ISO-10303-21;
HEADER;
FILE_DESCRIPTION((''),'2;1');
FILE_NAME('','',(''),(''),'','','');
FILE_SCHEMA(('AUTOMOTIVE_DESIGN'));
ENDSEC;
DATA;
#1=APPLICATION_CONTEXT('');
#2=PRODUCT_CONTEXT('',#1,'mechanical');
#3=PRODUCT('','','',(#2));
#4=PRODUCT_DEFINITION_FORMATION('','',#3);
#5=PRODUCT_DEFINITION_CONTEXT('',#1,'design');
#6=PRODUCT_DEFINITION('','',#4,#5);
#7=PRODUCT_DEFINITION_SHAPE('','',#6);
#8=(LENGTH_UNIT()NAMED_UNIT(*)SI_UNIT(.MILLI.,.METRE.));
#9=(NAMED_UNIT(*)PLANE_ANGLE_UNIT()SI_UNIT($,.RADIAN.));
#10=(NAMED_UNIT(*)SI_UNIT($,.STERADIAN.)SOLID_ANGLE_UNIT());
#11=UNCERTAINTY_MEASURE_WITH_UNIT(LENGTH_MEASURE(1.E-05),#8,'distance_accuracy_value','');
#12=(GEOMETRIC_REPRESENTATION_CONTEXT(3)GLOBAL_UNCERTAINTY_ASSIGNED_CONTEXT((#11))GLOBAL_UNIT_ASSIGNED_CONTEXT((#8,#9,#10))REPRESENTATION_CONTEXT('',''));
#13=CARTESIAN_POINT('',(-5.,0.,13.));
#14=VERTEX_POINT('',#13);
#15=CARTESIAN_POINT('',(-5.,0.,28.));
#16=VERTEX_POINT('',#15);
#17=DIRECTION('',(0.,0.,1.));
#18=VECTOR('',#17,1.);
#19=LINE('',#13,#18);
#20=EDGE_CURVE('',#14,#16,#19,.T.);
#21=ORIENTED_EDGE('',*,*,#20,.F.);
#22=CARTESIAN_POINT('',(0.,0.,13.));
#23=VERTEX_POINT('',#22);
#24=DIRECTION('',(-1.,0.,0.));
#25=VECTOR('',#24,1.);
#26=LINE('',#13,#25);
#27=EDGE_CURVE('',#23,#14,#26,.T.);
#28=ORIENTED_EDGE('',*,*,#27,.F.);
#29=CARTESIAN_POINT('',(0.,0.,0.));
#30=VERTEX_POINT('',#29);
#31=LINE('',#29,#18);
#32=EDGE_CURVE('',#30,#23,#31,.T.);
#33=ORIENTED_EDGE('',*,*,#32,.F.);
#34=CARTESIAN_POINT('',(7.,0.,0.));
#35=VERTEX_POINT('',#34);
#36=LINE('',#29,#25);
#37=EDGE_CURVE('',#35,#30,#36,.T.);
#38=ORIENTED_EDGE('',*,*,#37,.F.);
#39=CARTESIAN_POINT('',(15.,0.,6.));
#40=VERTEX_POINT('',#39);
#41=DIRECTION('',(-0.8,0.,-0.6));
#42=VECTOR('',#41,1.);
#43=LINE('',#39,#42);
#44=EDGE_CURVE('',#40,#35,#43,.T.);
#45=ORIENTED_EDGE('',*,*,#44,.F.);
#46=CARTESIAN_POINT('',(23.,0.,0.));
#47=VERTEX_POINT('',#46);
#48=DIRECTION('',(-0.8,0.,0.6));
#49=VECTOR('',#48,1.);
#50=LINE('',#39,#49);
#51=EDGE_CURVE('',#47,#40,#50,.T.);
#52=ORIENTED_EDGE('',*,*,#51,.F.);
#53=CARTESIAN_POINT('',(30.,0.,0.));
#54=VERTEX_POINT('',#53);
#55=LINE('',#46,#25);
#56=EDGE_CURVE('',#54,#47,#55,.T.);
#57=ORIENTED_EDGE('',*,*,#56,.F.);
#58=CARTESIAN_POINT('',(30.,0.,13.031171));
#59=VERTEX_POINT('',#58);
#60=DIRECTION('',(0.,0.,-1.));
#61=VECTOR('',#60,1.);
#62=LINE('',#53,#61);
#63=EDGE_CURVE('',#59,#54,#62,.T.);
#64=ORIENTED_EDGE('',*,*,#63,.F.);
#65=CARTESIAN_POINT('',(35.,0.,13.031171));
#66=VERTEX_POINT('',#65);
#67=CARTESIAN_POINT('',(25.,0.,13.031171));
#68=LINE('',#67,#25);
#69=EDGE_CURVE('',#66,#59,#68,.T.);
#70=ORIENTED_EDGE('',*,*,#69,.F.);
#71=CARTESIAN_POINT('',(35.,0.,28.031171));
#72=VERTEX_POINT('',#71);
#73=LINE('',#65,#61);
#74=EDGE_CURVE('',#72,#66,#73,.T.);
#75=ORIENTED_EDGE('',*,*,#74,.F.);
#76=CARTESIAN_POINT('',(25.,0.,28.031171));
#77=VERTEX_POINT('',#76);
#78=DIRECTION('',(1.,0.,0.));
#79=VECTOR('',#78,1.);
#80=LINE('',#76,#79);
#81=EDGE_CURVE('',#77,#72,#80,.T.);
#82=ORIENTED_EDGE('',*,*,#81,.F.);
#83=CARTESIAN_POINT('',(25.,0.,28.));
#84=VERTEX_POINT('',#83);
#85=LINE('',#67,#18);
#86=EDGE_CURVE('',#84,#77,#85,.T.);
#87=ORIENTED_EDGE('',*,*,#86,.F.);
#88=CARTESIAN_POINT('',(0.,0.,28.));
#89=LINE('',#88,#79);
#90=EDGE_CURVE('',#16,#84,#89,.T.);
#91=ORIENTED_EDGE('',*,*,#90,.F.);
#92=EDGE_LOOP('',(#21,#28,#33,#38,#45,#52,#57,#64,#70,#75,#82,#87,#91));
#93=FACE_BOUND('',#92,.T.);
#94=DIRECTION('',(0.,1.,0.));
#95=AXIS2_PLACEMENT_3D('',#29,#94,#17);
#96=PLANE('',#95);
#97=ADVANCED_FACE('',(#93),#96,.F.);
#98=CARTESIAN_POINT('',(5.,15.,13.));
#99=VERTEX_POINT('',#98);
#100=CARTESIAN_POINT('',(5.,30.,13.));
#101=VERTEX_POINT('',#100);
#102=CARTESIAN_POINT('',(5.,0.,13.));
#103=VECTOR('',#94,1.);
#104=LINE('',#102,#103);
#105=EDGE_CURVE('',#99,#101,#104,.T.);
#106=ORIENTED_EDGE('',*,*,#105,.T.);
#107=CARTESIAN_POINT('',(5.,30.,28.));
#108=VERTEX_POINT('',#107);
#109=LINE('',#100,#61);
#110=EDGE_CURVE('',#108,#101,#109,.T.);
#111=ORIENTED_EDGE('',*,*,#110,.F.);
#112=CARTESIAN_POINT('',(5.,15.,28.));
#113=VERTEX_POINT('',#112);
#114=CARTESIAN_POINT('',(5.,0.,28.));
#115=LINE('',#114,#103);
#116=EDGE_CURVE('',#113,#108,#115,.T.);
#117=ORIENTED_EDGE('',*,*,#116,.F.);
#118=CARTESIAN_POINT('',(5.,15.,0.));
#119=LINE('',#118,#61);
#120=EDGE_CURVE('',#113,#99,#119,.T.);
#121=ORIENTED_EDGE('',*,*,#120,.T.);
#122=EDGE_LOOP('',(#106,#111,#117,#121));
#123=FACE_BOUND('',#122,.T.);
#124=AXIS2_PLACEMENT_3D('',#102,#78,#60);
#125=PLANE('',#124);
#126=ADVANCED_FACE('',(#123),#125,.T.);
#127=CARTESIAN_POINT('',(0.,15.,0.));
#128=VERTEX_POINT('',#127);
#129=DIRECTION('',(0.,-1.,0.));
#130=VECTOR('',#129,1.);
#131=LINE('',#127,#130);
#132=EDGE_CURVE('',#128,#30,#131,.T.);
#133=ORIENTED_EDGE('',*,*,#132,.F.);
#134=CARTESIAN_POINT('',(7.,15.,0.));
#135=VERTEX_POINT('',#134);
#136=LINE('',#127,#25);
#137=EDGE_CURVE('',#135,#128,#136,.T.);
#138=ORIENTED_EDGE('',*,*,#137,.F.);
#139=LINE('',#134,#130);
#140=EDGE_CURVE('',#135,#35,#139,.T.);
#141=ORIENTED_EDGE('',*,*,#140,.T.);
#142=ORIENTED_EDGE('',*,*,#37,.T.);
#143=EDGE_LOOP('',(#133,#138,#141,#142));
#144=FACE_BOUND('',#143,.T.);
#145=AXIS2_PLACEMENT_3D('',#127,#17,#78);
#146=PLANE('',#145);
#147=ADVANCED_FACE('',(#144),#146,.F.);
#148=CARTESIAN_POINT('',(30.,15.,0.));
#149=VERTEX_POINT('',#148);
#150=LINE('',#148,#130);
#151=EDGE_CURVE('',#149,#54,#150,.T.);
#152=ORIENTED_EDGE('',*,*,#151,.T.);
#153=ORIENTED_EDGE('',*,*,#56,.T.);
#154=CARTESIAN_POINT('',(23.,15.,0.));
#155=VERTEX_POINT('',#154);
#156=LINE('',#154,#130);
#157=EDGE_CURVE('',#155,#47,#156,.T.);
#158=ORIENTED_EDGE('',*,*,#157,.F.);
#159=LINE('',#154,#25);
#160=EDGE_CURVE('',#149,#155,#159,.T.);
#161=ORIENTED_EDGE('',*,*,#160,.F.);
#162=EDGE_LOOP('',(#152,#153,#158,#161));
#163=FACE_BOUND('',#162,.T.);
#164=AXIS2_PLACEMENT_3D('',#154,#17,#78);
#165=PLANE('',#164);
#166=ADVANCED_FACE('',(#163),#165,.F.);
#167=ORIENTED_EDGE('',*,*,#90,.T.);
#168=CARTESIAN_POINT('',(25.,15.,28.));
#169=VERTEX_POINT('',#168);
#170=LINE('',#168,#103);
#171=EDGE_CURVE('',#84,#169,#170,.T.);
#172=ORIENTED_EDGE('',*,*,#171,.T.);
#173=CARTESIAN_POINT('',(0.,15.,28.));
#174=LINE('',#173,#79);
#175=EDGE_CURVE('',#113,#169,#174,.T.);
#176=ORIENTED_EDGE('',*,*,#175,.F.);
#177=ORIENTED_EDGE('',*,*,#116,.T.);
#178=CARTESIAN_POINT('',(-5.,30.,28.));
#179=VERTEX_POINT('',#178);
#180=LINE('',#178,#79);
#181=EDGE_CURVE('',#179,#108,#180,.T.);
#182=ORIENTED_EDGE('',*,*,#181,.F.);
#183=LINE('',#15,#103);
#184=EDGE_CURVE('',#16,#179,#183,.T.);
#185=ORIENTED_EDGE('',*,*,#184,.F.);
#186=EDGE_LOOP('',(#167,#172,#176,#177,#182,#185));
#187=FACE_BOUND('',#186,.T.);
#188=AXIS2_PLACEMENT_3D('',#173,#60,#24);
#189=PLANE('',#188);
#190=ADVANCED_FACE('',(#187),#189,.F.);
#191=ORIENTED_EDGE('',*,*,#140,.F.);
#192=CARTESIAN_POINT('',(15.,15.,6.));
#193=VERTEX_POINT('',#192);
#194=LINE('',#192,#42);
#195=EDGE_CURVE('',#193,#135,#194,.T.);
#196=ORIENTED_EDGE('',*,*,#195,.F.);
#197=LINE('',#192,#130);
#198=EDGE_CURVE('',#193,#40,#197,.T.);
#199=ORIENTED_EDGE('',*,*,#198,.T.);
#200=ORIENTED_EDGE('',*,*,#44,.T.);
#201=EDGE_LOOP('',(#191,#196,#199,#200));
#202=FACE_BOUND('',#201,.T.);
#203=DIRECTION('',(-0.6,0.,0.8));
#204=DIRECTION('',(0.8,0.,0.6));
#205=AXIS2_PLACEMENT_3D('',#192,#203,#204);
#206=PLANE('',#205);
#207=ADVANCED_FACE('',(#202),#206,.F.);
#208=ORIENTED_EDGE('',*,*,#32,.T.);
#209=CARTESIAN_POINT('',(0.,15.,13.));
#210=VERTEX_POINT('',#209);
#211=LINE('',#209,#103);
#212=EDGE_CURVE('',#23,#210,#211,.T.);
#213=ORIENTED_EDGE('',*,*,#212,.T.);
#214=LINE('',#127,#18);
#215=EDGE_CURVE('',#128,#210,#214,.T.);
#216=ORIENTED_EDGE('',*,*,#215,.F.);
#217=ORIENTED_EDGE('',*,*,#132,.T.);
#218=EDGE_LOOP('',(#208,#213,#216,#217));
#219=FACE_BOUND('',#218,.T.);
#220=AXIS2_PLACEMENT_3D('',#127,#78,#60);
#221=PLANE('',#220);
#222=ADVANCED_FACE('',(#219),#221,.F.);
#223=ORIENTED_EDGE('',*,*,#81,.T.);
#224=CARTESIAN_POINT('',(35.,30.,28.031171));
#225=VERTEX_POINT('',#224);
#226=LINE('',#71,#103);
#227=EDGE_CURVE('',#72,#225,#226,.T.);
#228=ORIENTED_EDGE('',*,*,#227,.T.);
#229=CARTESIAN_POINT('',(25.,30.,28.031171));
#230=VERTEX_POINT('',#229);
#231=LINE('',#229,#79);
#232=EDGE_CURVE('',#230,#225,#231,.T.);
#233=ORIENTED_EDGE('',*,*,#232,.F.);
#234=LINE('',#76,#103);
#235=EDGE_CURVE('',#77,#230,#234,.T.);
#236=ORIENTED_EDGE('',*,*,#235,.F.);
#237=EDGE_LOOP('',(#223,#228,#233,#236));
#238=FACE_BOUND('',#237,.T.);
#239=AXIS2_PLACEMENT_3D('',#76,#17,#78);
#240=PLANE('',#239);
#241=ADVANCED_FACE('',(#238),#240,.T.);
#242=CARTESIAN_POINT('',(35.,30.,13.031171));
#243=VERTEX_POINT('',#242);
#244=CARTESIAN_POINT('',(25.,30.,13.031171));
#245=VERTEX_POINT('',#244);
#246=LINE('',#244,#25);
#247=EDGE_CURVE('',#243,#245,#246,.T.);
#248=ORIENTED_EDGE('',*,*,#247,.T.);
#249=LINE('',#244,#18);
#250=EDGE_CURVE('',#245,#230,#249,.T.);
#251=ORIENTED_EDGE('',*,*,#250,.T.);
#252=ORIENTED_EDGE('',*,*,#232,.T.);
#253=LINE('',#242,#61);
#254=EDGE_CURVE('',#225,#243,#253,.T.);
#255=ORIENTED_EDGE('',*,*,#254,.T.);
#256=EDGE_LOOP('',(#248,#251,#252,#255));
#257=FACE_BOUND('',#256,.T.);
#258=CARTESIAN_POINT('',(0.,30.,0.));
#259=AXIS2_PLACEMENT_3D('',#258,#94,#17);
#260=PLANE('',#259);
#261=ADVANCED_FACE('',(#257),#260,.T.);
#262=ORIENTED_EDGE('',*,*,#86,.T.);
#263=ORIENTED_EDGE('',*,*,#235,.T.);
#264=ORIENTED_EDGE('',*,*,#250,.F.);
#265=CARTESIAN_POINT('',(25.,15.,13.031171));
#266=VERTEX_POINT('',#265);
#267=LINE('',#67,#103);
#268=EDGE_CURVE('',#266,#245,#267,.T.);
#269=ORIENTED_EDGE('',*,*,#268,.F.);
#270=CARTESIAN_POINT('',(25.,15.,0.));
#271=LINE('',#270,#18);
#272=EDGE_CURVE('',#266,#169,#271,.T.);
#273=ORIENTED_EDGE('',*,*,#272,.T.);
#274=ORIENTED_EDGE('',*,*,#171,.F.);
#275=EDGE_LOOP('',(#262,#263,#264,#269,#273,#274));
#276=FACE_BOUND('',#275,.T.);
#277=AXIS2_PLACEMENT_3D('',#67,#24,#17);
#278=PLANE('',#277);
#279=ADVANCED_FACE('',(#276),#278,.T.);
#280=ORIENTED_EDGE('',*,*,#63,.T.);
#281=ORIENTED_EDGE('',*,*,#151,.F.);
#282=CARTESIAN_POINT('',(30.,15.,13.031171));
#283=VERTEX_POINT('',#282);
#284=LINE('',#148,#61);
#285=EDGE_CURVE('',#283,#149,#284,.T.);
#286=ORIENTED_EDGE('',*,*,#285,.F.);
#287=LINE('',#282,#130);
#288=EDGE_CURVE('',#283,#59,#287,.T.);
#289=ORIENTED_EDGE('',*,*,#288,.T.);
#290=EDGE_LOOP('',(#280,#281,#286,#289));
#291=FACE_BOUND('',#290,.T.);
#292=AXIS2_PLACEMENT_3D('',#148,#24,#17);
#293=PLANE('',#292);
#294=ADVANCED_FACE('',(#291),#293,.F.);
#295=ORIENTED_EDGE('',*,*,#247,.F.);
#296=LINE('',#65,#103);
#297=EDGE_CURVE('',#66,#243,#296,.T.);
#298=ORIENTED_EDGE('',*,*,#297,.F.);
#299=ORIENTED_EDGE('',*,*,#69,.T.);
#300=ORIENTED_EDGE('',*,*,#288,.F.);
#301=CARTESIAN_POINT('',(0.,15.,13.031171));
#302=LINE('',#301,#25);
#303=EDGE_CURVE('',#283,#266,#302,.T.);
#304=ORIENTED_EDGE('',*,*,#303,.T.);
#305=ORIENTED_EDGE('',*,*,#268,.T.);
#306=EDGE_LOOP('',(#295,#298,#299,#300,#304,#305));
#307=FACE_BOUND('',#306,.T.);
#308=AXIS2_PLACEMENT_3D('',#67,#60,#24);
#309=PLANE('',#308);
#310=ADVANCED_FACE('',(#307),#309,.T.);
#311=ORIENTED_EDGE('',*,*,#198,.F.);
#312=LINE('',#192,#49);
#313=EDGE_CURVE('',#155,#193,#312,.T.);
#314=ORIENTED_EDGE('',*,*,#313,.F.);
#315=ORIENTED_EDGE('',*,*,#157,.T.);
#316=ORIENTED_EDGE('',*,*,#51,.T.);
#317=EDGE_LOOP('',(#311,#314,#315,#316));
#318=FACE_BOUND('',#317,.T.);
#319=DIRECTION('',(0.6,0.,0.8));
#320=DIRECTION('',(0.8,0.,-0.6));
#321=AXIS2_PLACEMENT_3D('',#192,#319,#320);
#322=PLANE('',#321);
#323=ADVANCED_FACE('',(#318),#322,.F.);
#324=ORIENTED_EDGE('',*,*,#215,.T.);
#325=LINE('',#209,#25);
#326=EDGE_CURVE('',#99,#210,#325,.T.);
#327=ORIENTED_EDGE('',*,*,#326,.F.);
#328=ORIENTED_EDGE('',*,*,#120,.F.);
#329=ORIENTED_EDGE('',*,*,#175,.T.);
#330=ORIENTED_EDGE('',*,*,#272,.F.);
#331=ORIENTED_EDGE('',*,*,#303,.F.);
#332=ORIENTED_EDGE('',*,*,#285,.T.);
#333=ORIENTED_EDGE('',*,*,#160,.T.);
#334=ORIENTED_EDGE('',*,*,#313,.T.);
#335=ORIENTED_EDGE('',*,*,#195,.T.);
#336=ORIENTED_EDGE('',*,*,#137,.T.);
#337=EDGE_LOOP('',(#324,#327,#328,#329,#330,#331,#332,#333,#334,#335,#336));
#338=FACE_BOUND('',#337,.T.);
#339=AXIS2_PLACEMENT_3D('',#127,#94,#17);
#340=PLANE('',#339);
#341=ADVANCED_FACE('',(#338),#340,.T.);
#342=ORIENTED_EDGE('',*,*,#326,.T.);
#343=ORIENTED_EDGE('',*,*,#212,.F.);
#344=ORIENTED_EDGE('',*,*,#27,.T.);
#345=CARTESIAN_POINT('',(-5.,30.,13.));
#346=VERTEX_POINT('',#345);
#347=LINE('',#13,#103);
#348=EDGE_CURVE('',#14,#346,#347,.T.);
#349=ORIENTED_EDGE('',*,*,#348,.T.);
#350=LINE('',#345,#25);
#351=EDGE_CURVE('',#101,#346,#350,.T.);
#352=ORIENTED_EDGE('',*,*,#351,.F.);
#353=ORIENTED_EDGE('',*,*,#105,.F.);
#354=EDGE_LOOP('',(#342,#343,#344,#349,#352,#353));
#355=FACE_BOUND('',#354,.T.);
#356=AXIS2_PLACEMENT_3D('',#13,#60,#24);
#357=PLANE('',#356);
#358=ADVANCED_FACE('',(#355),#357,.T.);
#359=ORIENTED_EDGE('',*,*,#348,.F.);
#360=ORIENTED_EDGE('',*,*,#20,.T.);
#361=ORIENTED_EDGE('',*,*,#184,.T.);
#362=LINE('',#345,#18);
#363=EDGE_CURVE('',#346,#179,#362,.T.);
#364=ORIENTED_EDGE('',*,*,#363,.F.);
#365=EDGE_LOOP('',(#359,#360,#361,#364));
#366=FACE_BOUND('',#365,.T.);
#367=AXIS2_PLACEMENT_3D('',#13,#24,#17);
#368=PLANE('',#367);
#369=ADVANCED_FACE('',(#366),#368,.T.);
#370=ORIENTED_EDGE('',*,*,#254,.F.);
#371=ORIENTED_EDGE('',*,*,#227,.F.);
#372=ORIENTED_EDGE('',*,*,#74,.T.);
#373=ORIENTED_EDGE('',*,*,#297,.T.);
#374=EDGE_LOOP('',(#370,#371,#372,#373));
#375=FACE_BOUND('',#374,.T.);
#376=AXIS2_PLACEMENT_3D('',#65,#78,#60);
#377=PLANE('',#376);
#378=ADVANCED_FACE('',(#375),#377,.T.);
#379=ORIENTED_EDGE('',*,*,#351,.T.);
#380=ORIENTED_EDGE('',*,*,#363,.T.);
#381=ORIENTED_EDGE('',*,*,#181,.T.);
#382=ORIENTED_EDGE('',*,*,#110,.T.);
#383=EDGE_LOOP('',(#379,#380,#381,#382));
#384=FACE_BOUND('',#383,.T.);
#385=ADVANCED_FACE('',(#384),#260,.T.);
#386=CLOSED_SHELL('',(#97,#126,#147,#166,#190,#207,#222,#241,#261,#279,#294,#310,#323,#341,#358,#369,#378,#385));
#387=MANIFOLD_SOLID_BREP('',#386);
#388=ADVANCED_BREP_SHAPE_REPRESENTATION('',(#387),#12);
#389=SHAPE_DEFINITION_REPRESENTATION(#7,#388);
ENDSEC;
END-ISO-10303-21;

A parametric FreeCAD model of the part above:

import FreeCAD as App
import Part
import Sketcher
from FreeCAD import Vector

doc = App.newDocument("Part")
body = doc.addObject("PartDesign::Body", "Body")

# Sketch on XZ plane
sketch1 = body.newObject("Sketcher::SketchObject", "Sketch")
sketch1.AttachmentSupport = (doc.getObject("XZ_Plane"), [""])
sketch1.MapMode = "FlatFace"
sketch1.addGeometry([
    Part.LineSegment(Vector(7, 0, 0), Vector(0, 0, 0)),  # 0
    Part.LineSegment(Vector(0, 0, 0), Vector(0, 28, 0)),  # 1
    Part.LineSegment(Vector(0, 28, 0), Vector(30, 28, 0)),  # 2
    Part.LineSegment(Vector(30, 28, 0), Vector(30, 0, 0)),  # 3
    Part.LineSegment(Vector(30, 0, 0), Vector(23, 0, 0)),  # 4
    Part.LineSegment(Vector(23, 0, 0), Vector(15, 6, 0)),  # 5
    Part.LineSegment(Vector(15, 6, 0), Vector(7, 0, 0)),  # 6
], False)
sketch1.addConstraint([
    Sketcher.Constraint("Coincident", 0, 2, 1, 1),
    Sketcher.Constraint("Coincident", 1, 2, 2, 1),
    Sketcher.Constraint("Coincident", 2, 2, 3, 1),
    Sketcher.Constraint("Coincident", 3, 2, 4, 1),
    Sketcher.Constraint("Coincident", 4, 2, 5, 1),
    Sketcher.Constraint("Coincident", 5, 2, 6, 1),
    Sketcher.Constraint("Coincident", 6, 2, 0, 1),
    Sketcher.Constraint("Horizontal", 0),
    Sketcher.Constraint("Vertical", 1),
    Sketcher.Constraint("Horizontal", 2),
    Sketcher.Constraint("Vertical", 3),
    Sketcher.Constraint("Horizontal", 4),
    Sketcher.Constraint("Coincident", 0, 2, -1, 1),
    Sketcher.Constraint("PointOnObject", 3, 2, -1),
    Sketcher.Constraint("Equal", 0, 4),
    Sketcher.Constraint("Equal", 5, 6),
    Sketcher.Constraint("DistanceX", 0, 2, 0, 1, 7.0),
    Sketcher.Constraint("DistanceX", 2, 1, 2, 2, 30.0),
    Sketcher.Constraint("DistanceY", 1, 1, 1, 2, 28.0),
    Sketcher.Constraint("Distance", 5, 10.0),
])
pad1 = body.newObject("PartDesign::Pad", "Pad")
pad1.Profile = sketch1
pad1.Length = 15
pad1.Reversed = True

# Sketch on XZ plane
sketch2 = body.newObject("Sketcher::SketchObject", "Sketch001")
sketch2.AttachmentSupport = (doc.getObject("XZ_Plane"), [""])
sketch2.MapMode = "FlatFace"
sketch2.AttachmentOffset = App.Placement(Vector(0, 0, -15), App.Rotation())
sketch2.addGeometry([
    Part.LineSegment(Vector(25, 13, 0), Vector(25, 28, 0)),  # 0
    Part.LineSegment(Vector(25, 28, 0), Vector(35, 28, 0)),  # 1
    Part.LineSegment(Vector(35, 28, 0), Vector(35, 13, 0)),  # 2
    Part.LineSegment(Vector(35, 13, 0), Vector(25, 13, 0)),  # 3
    Part.LineSegment(Vector(-5, 13, 0), Vector(-5, 28, 0)),  # 4
    Part.LineSegment(Vector(-5, 28, 0), Vector(5, 28, 0)),  # 5
    Part.LineSegment(Vector(5, 28, 0), Vector(5, 13, 0)),  # 6
    Part.LineSegment(Vector(5, 13, 0), Vector(-5, 13, 0)),  # 7
], False)
sketch2.addConstraint([
    Sketcher.Constraint("Coincident", 0, 2, 1, 1),
    Sketcher.Constraint("Coincident", 1, 2, 2, 1),
    Sketcher.Constraint("Coincident", 2, 2, 3, 1),
    Sketcher.Constraint("Coincident", 3, 2, 0, 1),
    Sketcher.Constraint("Coincident", 4, 2, 5, 1),
    Sketcher.Constraint("Coincident", 5, 2, 6, 1),
    Sketcher.Constraint("Coincident", 6, 2, 7, 1),
    Sketcher.Constraint("Coincident", 7, 2, 4, 1),
    Sketcher.Constraint("Vertical", 0),
    Sketcher.Constraint("Horizontal", 1),
    Sketcher.Constraint("Vertical", 2),
    Sketcher.Constraint("Horizontal", 3),
    Sketcher.Constraint("Vertical", 4),
    Sketcher.Constraint("Horizontal", 5),
    Sketcher.Constraint("Vertical", 6),
    Sketcher.Constraint("Horizontal", 7),
    Sketcher.Constraint("Equal", 3, 5),
    Sketcher.Constraint("Equal", 2, 4),
    Sketcher.Constraint("DistanceX", 1, 1, 1, 2, 10.0),
    Sketcher.Constraint("DistanceY", 0, 1, 0, 2, 15.0),
    Sketcher.Constraint("DistanceX", -1, 1, 0, 2, 25.0),
    Sketcher.Constraint("DistanceX", 4, 2, -1, 1, 5.0),
    Sketcher.Constraint("DistanceY", -1, 1, 4, 2, 28.0),
    Sketcher.Constraint("DistanceY", -1, 1, 0, 2, 28.031171),
])
pad2 = body.newObject("PartDesign::Pad", "Pad001")
pad2.Profile = sketch2
pad2.Type = "TwoLengths"
pad2.Length = 15
pad2.Length2 = 15
pad2.Reversed = True

doc.recompute()
